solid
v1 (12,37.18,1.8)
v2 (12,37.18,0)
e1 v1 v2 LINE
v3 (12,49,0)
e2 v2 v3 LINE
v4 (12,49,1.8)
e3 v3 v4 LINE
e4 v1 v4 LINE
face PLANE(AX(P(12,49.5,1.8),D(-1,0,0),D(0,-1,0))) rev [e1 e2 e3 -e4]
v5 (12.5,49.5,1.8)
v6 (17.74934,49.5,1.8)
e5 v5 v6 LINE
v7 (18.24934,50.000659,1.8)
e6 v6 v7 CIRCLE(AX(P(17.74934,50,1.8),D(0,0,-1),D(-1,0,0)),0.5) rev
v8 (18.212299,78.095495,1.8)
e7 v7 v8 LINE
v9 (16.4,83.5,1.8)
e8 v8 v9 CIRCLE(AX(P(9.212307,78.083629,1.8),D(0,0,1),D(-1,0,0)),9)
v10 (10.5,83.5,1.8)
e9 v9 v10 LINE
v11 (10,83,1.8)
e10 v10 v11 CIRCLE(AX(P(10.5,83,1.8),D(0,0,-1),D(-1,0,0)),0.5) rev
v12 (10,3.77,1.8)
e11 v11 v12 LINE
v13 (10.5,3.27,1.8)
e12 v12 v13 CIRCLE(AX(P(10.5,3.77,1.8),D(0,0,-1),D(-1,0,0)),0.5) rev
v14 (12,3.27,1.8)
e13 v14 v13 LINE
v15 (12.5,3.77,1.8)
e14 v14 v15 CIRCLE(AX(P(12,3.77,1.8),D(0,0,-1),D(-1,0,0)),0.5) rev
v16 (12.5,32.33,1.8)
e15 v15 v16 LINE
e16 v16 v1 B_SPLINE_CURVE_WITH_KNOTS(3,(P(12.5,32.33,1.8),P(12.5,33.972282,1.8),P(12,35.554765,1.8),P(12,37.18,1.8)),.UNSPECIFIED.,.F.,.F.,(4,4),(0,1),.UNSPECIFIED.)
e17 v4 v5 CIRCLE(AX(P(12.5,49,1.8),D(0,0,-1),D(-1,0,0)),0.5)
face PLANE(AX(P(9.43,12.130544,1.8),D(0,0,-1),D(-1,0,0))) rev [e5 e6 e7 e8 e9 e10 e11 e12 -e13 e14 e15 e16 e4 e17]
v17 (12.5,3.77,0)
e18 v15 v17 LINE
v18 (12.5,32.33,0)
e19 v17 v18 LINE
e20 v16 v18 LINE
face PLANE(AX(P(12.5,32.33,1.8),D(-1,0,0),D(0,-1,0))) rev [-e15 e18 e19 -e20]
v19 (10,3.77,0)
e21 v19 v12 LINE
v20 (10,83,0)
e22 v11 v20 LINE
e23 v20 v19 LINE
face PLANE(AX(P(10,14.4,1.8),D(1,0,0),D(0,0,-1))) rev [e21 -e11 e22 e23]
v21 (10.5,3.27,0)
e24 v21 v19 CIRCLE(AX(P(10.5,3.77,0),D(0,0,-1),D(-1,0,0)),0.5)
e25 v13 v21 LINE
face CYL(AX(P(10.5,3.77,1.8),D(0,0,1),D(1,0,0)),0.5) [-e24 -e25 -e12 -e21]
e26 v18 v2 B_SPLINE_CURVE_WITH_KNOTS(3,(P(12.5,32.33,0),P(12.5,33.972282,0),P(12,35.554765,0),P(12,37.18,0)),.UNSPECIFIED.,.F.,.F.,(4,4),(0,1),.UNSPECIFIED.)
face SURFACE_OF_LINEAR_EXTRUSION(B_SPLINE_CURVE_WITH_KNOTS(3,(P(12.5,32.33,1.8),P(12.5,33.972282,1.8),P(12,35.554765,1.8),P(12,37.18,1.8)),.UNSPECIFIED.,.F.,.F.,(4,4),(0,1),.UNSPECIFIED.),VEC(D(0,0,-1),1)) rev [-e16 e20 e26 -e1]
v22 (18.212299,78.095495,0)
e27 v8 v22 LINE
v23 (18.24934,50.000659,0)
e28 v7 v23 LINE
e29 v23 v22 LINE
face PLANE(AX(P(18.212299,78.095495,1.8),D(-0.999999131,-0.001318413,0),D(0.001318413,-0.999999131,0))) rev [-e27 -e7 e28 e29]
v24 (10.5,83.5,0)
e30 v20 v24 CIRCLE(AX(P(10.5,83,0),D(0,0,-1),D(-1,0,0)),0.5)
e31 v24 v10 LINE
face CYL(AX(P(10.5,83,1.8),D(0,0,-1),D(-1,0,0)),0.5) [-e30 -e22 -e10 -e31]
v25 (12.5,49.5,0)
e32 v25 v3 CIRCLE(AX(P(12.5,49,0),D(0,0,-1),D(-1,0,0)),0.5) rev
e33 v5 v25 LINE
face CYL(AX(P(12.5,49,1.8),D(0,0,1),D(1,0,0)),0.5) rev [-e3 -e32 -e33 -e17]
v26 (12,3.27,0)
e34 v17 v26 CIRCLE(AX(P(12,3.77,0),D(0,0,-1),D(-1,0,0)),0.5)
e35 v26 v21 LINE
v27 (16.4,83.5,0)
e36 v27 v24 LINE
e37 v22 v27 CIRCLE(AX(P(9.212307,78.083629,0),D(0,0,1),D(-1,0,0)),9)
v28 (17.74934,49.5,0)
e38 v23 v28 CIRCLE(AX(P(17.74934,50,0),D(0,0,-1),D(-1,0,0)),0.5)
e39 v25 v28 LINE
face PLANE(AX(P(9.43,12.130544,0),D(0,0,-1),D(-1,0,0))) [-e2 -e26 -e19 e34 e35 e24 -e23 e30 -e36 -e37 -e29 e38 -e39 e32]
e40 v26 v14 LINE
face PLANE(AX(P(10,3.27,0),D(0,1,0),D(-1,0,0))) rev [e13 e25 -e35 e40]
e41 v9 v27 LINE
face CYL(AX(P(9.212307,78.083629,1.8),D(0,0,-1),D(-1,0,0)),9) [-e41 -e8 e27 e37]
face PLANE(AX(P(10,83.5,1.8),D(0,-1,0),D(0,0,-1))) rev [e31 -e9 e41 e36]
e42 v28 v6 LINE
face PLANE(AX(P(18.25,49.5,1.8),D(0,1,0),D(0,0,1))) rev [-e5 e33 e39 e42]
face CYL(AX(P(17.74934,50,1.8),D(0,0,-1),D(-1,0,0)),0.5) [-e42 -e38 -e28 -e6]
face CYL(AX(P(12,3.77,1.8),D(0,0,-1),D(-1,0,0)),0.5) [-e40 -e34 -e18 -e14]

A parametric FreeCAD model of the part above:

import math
import FreeCAD as App
import Part
import Sketcher
Q = App.Units.Quantity


def edges_at(feature, points):
    """Names of the edges that pass closest to the given points."""
    edges = feature.Shape.Edges
    near = lambda p: min(range(len(edges)), key=lambda i: edges[i].distToShape(Part.Vertex(*p))[0])
    return sorted({f"Edge{near(p) + 1}" for p in points})

doc = App.newDocument("Part")
body = doc.addObject("PartDesign::Body", "Body")

# Sketch on XY plane
sketch1 = body.newObject("Sketcher::SketchObject", "Sketch")
sketch1.AttachmentSupport = (doc.getObject("XY_Plane"), [""])
sketch1.MapMode = "FlatFace"
sketch1.addGeometry(Part.LineSegment(App.Vector(0, 6.5, 0), App.Vector(0, 4.5, 0)), False)
sketch1.addGeometry(Part.ArcOfCircle(Part.Circle(App.Vector(9.43, 12.130544, 0), App.Vector(0, 0, 1), 12.130544), math.radians(-141.020993), math.radians(-90)), False)
sketch1.addGeometry(Part.ArcOfCircle(Part.Circle(App.Vector(9.43, 3.07, 0), App.Vector(0, 0, 1), 3.07), math.radians(-90), math.radians(0)), False)
sketch1.addGeometry(Part.LineSegment(App.Vector(12.5, 3.07, 0), App.Vector(12.5, 32.33, 0)), False)
sketch1.addGeometry(Part.BSplineCurve([App.Vector(12, 37.18, 0), App.Vector(12, 35.554765, 0), App.Vector(12.5, 33.972282, 0), App.Vector(12.5, 32.33, 0)], [4, 4], [0, 1], False, 3, [1, 1, 1, 1], False), False)
sketch1.addGeometry(Part.LineSegment(App.Vector(12, 37.18, 0), App.Vector(12, 49.5, 0)), False)
sketch1.addGeometry(Part.LineSegment(App.Vector(12, 49.5, 0), App.Vector(18.25, 49.5, 0)), False)
sketch1.addGeometry(Part.LineSegment(App.Vector(18.25, 49.5, 0), App.Vector(18.212299, 78.095495, 0)), False)
sketch1.addGeometry(Part.ArcOfCircle(Part.Circle(App.Vector(9.212307, 78.083629, 0), App.Vector(0, 0, 1), 9), math.radians(0.07554), math.radians(37.000283)), False)
sketch1.addGeometry(Part.LineSegment(App.Vector(16.4, 83.5, 0), App.Vector(10, 83.5, 0)), False)
sketch1.addGeometry(Part.LineSegment(App.Vector(10, 83.5, 0), App.Vector(10, 14.4, 0)), False)
sketch1.addGeometry(Part.LineSegment(App.Vector(10, 14.4, 0), App.Vector(6.1, 10.5, 0)), False)
sketch1.addGeometry(Part.LineSegment(App.Vector(6.1, 10.5, 0), App.Vector(6.1, 6.5, 0)), False)
sketch1.addGeometry(Part.LineSegment(App.Vector(6.1, 6.5, 0), App.Vector(0, 6.5, 0)), False)
sketch1.addConstraint(Sketcher.Constraint("Block", 4))
sketch1.addConstraint(Sketcher.Constraint("Coincident", 0, 2, 1, 1))
sketch1.addConstraint(Sketcher.Constraint("Tangent", 1, 2, 2, 1))
sketch1.addConstraint(Sketcher.Constraint("Tangent", 2, 2, 3, 1))
sketch1.addConstraint(Sketcher.Constraint("Coincident", 3, 2, 4, 2))
sketch1.addConstraint(Sketcher.Constraint("Coincident", 4, 1, 5, 1))
sketch1.addConstraint(Sketcher.Constraint("Coincident", 5, 2, 6, 1))
sketch1.addConstraint(Sketcher.Constraint("Coincident", 6, 2, 7, 1))
sketch1.addConstraint(Sketcher.Constraint("Tangent", 7, 2, 8, 1))
sketch1.addConstraint(Sketcher.Constraint("Coincident", 8, 2, 9, 1))
sketch1.addConstraint(Sketcher.Constraint("Coincident", 9, 2, 10, 1))
sketch1.addConstraint(Sketcher.Constraint("Coincident", 10, 2, 11, 1))
sketch1.addConstraint(Sketcher.Constraint("Coincident", 11, 2, 12, 1))
sketch1.addConstraint(Sketcher.Constraint("Coincident", 12, 2, 13, 1))
sketch1.addConstraint(Sketcher.Constraint("Coincident", 13, 2, 0, 1))
sketch1.addConstraint(Sketcher.Constraint("Vertical", 0))
sketch1.addConstraint(Sketcher.Constraint("Vertical", 3))
sketch1.addConstraint(Sketcher.Constraint("Vertical", 5))
sketch1.addConstraint(Sketcher.Constraint("Horizontal", 6))
sketch1.addConstraint(Sketcher.Constraint("Horizontal", 9))
sketch1.addConstraint(Sketcher.Constraint("Vertical", 10))
sketch1.addConstraint(Sketcher.Constraint("Vertical", 12))
sketch1.addConstraint(Sketcher.Constraint("Horizontal", 13))
sketch1.addConstraint(Sketcher.Constraint("PointOnObject", 0, 2, -2))
sketch1.addConstraint(Sketcher.Constraint("PointOnObject", 1, 2, -1))
sketch1.addConstraint(Sketcher.Constraint("Vertical", 1, 3, 2, 3))
sketch1.addConstraint(Sketcher.Constraint("Radius", 8, Q("9 mm")))
sketch1.addConstraint(Sketcher.Constraint("DistanceY", 0, 2, 0, 1, Q("2 mm")))
sketch1.addConstraint(Sketcher.Constraint("DistanceY", 12, 2, 12, 1, Q("4 mm")))
sketch1.addConstraint(Sketcher.Constraint("Angle", 11, Q("-135 deg")))
sketch1.addConstraint(Sketcher.Constraint("Radius", 2, Q("3.07 mm")))
sketch1.addConstraint(Sketcher.Constraint("DistanceX", 9, 2, 9, 1, Q("6.4 mm")))
sketch1.addConstraint(Sketcher.Constraint("DistanceX", 13, 2, 13, 1, Q("6.1 mm")))
sketch1.addConstraint(Sketcher.Constraint("DistanceY", 10, 2, 10, 1, Q("69.1 mm")))
sketch1.addConstraint(Sketcher.Constraint("DistanceX", -1, 1, 9, 2, Q("10 mm")))
sketch1.addConstraint(Sketcher.Constraint("DistanceY", 6, 2, 8, 2, Q("34 mm")))
sketch1.addConstraint(Sketcher.Constraint("DistanceX", 6, 1, 6, 2, Q("6.25 mm")))
sketch1.addConstraint(Sketcher.Constraint("DistanceY", 5, 1, 5, 2, Q("12.32 mm")))
sketch1.addConstraint(Sketcher.Constraint("DistanceX", -1, 1, 7, 2, Q("18.212299 mm")))
pad1 = body.newObject("PartDesign::Pad", "Pad")
pad1.Profile = sketch1
pad1.Length = 1.8
doc.recompute()

fillet = body.newObject("PartDesign::Fillet", "Fillet")
fillet.Base = (pad1, edges_at(pad1, [
    (0, 6.5, 0.9),
    (6.1, 6.5, 0.9),
    (6.1, 10.5, 0.9),
    (10, 14.4, 0.9),
    (10, 83.5, 0.9),
    (18.25, 49.5, 0.9),
    (12, 49.5, 0.9),
]))
fillet.Radius = 0.5

# Sketch on XY plane
sketch2 = body.newObject("Sketcher::SketchObject", "Sketch001")
sketch2.AttachmentSupport = (doc.getObject("XY_Plane"), [""])
sketch2.MapMode = "FlatFace"
sketch2.addGeometry(Part.ArcOfCircle(Part.Circle(App.Vector(9.5, -2.499833, 0), App.Vector(0, 0, 1), 2.5), math.radians(180), math.radians(381.624634)), False)
sketch2.addGeometry(Part.LineSegment(App.Vector(7, -2.499833, 0), App.Vector(7, 0.500167, 0)), False)
sketch2.addGeometry(Part.LineSegment(App.Vector(7, 0.500167, 0), App.Vector(11, 0.500167, 0)), False)
sketch2.addGeometry(Part.LineSegment(App.Vector(11, 0.500167, 0), App.Vector(11.021884, 0.444965, 0)), False)
sketch2.addGeometry(Part.LineSegment(App.Vector(11.021884, 0.444965, 0), App.Vector(11.824045, -1.578522, 0)), False)
sketch2.addGeometry(Part.Circle(App.Vector(9.5, -2.499833, 0), App.Vector(0, 0, 1), 1.75), False)
sketch2.addConstraint(Sketcher.Constraint("Tangent", 0, 1, 1, 1))
sketch2.addConstraint(Sketcher.Constraint("Coincident", 1, 2, 2, 1))
sketch2.addConstraint(Sketcher.Constraint("Coincident", 2, 2, 3, 1))
sketch2.addConstraint(Sketcher.Constraint("Coincident", 3, 2, 4, 1))
sketch2.addConstraint(Sketcher.Constraint("Tangent", 4, 2, 0, 2))
sketch2.addConstraint(Sketcher.Constraint("Vertical", 1))
sketch2.addConstraint(Sketcher.Constraint("Horizontal", 2))
sketch2.addConstraint(Sketcher.Constraint("Coincident", 5, 3, 0, 3))
sketch2.addConstraint(Sketcher.Constraint("Parallel", 3, 4))
sketch2.addConstraint(Sketcher.Constraint("Diameter", 5, Q("3.5 mm")))
sketch2.addConstraint(Sketcher.Constraint("Radius", 0, Q("2.5 mm")))
sketch2.addConstraint(Sketcher.Constraint("DistanceX", 2, 1, 2, 2, Q("4 mm")))
sketch2.addConstraint(Sketcher.Constraint("DistanceY", 1, 1, 1, 2, Q("3 mm")))
sketch2.addConstraint(Sketcher.Constraint("DistanceX", -1, 1, 0, 1, Q("7 mm")))
sketch2.addConstraint(Sketcher.Constraint("Distance", 3, Q("0.059381 mm")))
sketch2.addConstraint(Sketcher.Constraint("DistanceY", 4, 2, -1, 1, Q("1.578522 mm")))
pad2 = body.newObject("PartDesign::Pad", "Pad001")
pad2.Profile = sketch2
pad2.Length = 1.8
doc.recompute()

fillet2 = body.newObject("PartDesign::Fillet", "Fillet001")
fillet2.Base = (pad2, edges_at(pad2, [(7, 0.246, 0.9), (11.022, 0.445, 0.9)]))
fillet2.Radius = 1

# Sketch on XY plane
sketch3 = body.newObject("Sketcher::SketchObject", "Sketch002")
sketch3.AttachmentSupport = (doc.getObject("XY_Plane"), [""])
sketch3.MapMode = "FlatFace"
sketch3.AttachmentOffset = App.Placement(App.Vector(0, 0, 1.8), App.Rotation())
sketch3.addGeometry(Part.LineSegment(App.Vector(10, 3.27, 0), App.Vector(10, 23.170697, 0)), False)
sketch3.addGeometry(Part.LineSegment(App.Vector(10, 23.170697, 0), App.Vector(-3.496989, 23.170697, 0)), False)
sketch3.addGeometry(Part.LineSegment(App.Vector(-3.496989, 23.170697, 0), App.Vector(-3.496989, -7.898816, 0)), False)
sketch3.addGeometry(Part.LineSegment(App.Vector(-3.496989, -7.898816, 0), App.Vector(15.071899, -7.898816, 0)), False)
sketch3.addGeometry(Part.LineSegment(App.Vector(15.071899, -7.898816, 0), App.Vector(15.071899, 3.27, 0)), False)
sketch3.addGeometry(Part.LineSegment(App.Vector(15.071899, 3.27, 0), App.Vector(10, 3.27, 0)), False)
sketch3.addConstraint(Sketcher.Constraint("Coincident", 0, 2, 1, 1))
sketch3.addConstraint(Sketcher.Constraint("Coincident", 1, 2, 2, 1))
sketch3.addConstraint(Sketcher.Constraint("Coincident", 2, 2, 3, 1))
sketch3.addConstraint(Sketcher.Constraint("Coincident", 3, 2, 4, 1))
sketch3.addConstraint(Sketcher.Constraint("Coincident", 4, 2, 5, 1))
sketch3.addConstraint(Sketcher.Constraint("Coincident", 5, 2, 0, 1))
sketch3.addConstraint(Sketcher.Constraint("Vertical", 0))
sketch3.addConstraint(Sketcher.Constraint("Horizontal", 1))
sketch3.addConstraint(Sketcher.Constraint("Vertical", 2))
sketch3.addConstraint(Sketcher.Constraint("Horizontal", 3))
sketch3.addConstraint(Sketcher.Constraint("Vertical", 4))
sketch3.addConstraint(Sketcher.Constraint("Horizontal", 5))
sketch3.addConstraint(Sketcher.Constraint("DistanceX", -1, 1, 0, 2, Q("10 mm")))
sketch3.addConstraint(Sketcher.Constraint("DistanceY", -1, 1, 4, 2, Q("3.27 mm")))
sketch3.addConstraint(Sketcher.Constraint("DistanceX", 5, 2, 5, 1, Q("5.071899 mm")))
sketch3.addConstraint(Sketcher.Constraint("DistanceX", 1, 2, 1, 1, Q("13.496989 mm")))
sketch3.addConstraint(Sketcher.Constraint("DistanceY", 0, 1, 0, 2, Q("19.900697 mm")))
sketch3.addConstraint(Sketcher.Constraint("DistanceY", 2, 2, 2, 1, Q("31.069513 mm")))
pocket1 = body.newObject("PartDesign::Pocket", "Pocket")
pocket1.Profile = sketch3
pocket1.Type = "ThroughAll"
doc.recompute()

fillet3 = body.newObject("PartDesign::Fillet", "Fillet002")
fillet3.Base = (pocket1, edges_at(pocket1, [(12.5, 3.27, 0.9), (10, 3.27, 0.9)]))
fillet3.Radius = 0.5

doc.recompute()
